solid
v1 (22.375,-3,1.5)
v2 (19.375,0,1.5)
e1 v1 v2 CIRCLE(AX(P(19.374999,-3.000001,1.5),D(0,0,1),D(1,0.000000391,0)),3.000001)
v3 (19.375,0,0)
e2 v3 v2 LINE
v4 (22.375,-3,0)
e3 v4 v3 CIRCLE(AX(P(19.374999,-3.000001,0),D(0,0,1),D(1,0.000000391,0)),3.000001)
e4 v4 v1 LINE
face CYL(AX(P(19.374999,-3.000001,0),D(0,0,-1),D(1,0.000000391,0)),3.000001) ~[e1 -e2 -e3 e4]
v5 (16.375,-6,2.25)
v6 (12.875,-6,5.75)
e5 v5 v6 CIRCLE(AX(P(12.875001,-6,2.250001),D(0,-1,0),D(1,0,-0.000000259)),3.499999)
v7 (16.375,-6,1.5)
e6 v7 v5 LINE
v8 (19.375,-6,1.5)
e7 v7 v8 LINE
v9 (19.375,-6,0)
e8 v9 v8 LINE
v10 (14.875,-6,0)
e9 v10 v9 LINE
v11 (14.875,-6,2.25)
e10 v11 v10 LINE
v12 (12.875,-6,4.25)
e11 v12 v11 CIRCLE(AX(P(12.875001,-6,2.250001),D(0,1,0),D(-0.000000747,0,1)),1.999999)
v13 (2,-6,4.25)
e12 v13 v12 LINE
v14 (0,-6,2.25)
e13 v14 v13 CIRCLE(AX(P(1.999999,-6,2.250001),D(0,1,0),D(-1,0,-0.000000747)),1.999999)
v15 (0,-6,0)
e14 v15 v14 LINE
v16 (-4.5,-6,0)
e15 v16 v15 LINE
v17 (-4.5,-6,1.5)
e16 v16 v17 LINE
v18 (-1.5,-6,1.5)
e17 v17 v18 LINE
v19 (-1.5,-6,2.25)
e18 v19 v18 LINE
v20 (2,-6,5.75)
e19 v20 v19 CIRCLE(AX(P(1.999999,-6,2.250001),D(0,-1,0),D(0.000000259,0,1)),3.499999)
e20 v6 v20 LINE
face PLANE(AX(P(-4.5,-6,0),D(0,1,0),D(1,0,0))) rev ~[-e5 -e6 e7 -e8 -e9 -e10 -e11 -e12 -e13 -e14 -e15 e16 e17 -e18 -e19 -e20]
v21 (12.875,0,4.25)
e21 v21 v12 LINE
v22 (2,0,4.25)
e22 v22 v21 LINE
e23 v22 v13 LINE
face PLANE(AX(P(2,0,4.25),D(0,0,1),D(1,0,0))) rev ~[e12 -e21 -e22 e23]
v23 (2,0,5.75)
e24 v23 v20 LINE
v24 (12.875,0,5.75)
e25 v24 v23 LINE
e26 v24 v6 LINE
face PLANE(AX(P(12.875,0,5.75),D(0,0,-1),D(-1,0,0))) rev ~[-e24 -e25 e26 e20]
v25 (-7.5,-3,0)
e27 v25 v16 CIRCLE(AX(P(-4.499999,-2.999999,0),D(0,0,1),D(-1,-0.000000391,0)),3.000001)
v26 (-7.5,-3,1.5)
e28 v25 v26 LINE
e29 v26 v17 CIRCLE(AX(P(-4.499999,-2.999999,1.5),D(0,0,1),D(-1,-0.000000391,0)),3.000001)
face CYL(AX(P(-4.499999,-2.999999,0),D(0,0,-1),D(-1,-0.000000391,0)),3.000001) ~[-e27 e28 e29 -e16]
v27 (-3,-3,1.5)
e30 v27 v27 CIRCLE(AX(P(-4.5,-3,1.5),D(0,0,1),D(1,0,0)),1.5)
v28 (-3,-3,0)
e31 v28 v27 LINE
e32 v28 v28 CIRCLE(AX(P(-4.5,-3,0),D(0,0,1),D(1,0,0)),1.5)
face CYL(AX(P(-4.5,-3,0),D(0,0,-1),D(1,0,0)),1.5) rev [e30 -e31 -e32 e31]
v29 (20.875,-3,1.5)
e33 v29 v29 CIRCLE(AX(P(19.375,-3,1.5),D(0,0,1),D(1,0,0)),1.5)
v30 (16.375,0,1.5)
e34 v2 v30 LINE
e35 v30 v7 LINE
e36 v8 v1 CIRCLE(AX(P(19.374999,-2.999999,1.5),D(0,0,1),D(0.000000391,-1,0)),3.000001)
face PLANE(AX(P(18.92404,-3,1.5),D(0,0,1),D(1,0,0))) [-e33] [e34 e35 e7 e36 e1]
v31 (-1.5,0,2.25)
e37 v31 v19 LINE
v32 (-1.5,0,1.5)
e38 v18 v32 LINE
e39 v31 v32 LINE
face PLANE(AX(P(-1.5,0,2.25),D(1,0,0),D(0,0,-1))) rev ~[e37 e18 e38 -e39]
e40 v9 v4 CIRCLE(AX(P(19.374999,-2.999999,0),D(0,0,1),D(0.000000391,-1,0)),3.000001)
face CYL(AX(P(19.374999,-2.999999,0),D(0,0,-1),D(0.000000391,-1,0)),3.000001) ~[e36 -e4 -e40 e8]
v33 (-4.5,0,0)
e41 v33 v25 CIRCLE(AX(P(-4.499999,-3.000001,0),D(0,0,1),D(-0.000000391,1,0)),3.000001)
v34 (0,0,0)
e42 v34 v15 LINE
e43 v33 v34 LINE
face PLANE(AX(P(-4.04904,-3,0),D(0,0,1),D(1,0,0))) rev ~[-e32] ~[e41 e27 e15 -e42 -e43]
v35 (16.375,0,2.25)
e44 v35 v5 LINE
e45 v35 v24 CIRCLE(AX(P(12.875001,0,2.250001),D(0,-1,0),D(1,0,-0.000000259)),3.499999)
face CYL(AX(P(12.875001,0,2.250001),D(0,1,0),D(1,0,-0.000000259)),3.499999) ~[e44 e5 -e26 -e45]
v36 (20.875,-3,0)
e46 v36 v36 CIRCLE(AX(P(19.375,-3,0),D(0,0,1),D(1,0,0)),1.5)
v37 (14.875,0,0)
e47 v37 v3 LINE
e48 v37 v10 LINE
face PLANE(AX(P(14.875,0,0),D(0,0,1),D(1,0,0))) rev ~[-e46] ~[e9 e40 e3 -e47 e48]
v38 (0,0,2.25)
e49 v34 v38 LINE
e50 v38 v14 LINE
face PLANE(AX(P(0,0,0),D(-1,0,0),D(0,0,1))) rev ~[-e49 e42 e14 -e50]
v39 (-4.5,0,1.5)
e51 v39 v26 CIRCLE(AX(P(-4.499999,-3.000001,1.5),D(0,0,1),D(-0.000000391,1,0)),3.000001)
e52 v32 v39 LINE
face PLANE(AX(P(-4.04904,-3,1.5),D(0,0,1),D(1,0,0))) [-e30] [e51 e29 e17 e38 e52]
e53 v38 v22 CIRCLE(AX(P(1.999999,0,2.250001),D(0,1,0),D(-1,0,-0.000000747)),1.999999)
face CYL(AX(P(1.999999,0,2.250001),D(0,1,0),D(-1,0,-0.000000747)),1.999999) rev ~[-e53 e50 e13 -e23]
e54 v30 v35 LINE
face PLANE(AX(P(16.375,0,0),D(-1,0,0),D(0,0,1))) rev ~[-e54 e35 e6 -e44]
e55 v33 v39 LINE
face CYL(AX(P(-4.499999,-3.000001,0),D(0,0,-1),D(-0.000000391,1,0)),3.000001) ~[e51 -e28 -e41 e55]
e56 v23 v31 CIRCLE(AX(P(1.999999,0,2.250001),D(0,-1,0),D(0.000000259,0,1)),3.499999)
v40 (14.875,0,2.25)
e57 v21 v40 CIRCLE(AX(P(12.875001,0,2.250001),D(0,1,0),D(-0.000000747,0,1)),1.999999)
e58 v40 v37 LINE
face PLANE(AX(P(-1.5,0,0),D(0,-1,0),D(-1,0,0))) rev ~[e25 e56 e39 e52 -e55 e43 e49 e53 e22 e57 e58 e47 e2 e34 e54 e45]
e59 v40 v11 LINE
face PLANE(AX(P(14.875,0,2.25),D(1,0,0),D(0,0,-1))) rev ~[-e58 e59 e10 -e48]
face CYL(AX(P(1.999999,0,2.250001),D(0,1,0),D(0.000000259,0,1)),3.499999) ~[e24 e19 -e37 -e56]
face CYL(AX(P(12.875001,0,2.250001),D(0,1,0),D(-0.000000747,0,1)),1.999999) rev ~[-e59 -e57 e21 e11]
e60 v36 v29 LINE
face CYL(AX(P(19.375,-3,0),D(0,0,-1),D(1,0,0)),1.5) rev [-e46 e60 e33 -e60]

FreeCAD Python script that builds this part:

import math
import FreeCAD as App
import Part
import Sketcher
from FreeCAD import Vector
Q = App.Units.Quantity

doc = App.newDocument("Part")
params = doc.addObject("Spreadsheet::Sheet", "Params")
for row, (alias, value) in enumerate([
    ("sketch1_radius", "1.999999 mm"),
    ("sketch1_radius2", "3.499999 mm"),
    ("sketch1_height", "2.25 mm"),
    ("pad1_length", "6 mm"),
    ("sketch2_diameter", "3 mm"),
    ("sketch2_radius", "3.000001 mm"),
    ("sketch2_width", "3 mm"),
    ("pad2_length", "1.5 mm"),
], start=1):
    params.set(f"A{row}", alias)
    params.set(f"B{row}", "=" + value)
    params.setAlias(f"B{row}", alias)

body = doc.addObject("PartDesign::Body", "Body")

sketch1 = body.newObject("Sketcher::SketchObject", "Sketch")
sketch1.AttachmentSupport = (doc.getObject("XZ_Plane"), [""])
sketch1.MapMode = "FlatFace"
sketch1.addGeometry(Part.LineSegment(Vector(-1.5, 0, 0), Vector(0, 0, 0)), False)
sketch1.addGeometry(Part.LineSegment(Vector(0, 0, 0), Vector(0, 2.25, 0)), False)
sketch1.addGeometry(Part.ArcOfCircle(Part.Circle(Vector(1.999999, 2.250001, 0), Vector(0, 0, 1), 1.999999), math.radians(89.999957), math.radians(180.000043)), False)
sketch1.addGeometry(Part.LineSegment(Vector(2, 4.25, 0), Vector(12.875, 4.25, 0)), False)
sketch1.addGeometry(Part.ArcOfCircle(Part.Circle(Vector(12.875001, 2.250001, 0), Vector(0, 0, 1), 1.999999), math.radians(-0.000043), math.radians(90.000043)), False)
sketch1.addGeometry(Part.LineSegment(Vector(14.875, 2.25, 0), Vector(14.875, 0, 0)), False)
sketch1.addGeometry(Part.LineSegment(Vector(14.875, 0, 0), Vector(16.375, 0, 0)), False)
sketch1.addGeometry(Part.LineSegment(Vector(16.375, 0, 0), Vector(16.375, 2.25, 0)), False)
sketch1.addGeometry(Part.ArcOfCircle(Part.Circle(Vector(12.875001, 2.250001, 0), Vector(0, 0, 1), 3.499999), math.radians(-0.000015), math.radians(90.000015)), False)
sketch1.addGeometry(Part.LineSegment(Vector(12.875, 5.75, 0), Vector(2, 5.75, 0)), False)
sketch1.addGeometry(Part.ArcOfCircle(Part.Circle(Vector(1.999999, 2.250001, 0), Vector(0, 0, 1), 3.499999), math.radians(89.999985), math.radians(180.000015)), False)
sketch1.addGeometry(Part.LineSegment(Vector(-1.5, 2.25, 0), Vector(-1.5, 0, 0)), False)
sketch1.addConstraint(Sketcher.Constraint("Coincident", 0, 2, 1, 1))
sketch1.addConstraint(Sketcher.Constraint("Tangent", 1, 2, 2, 2))
sketch1.addConstraint(Sketcher.Constraint("Tangent", 2, 1, 3, 1))
sketch1.addConstraint(Sketcher.Constraint("Tangent", 3, 2, 4, 2))
sketch1.addConstraint(Sketcher.Constraint("Tangent", 4, 1, 5, 1))
sketch1.addConstraint(Sketcher.Constraint("Coincident", 5, 2, 6, 1))
sketch1.addConstraint(Sketcher.Constraint("Coincident", 6, 2, 7, 1))
sketch1.addConstraint(Sketcher.Constraint("Tangent", 7, 2, 8, 1))
sketch1.addConstraint(Sketcher.Constraint("Tangent", 8, 2, 9, 1))
sketch1.addConstraint(Sketcher.Constraint("Tangent", 9, 2, 10, 1))
sketch1.addConstraint(Sketcher.Constraint("Tangent", 10, 2, 11, 1))
sketch1.addConstraint(Sketcher.Constraint("Coincident", 11, 2, 0, 1))
sketch1.addConstraint(Sketcher.Constraint("Horizontal", 0))
sketch1.addConstraint(Sketcher.Constraint("Vertical", 1))
sketch1.addConstraint(Sketcher.Constraint("Horizontal", 3))
sketch1.addConstraint(Sketcher.Constraint("Vertical", 5))
sketch1.addConstraint(Sketcher.Constraint("Horizontal", 6))
sketch1.addConstraint(Sketcher.Constraint("Vertical", 7))
sketch1.addConstraint(Sketcher.Constraint("Horizontal", 9))
sketch1.addConstraint(Sketcher.Constraint("Vertical", 11))
sketch1.addConstraint(Sketcher.Constraint("Coincident", 0, 2, -1, 1))
sketch1.addConstraint(Sketcher.Constraint("Coincident", 8, 3, 4, 3))
sketch1.addConstraint(Sketcher.Constraint("Coincident", 10, 3, 2, 3))
sketch1.addConstraint(Sketcher.Constraint("Equal", 2, 4))
sketch1.addConstraint(Sketcher.Constraint("PointOnObject", 5, 2, -1))
sketch1.addConstraint(Sketcher.Constraint("Radius", 2, Q("1.999999 mm")))
sketch1.addConstraint(Sketcher.Constraint("Radius", 8, Q("3.499999 mm")))
sketch1.addConstraint(Sketcher.Constraint("DistanceY", 1, 1, 1, 2, Q("2.25 mm")))
sketch1.addConstraint(Sketcher.Constraint("DistanceX", 3, 1, 3, 2, Q("10.875 mm")))
sketch1.setExpression("Constraints[25]", "Params.sketch1_radius")
sketch1.setExpression("Constraints[26]", "Params.sketch1_radius2")
sketch1.setExpression("Constraints[27]", "Params.sketch1_height")
pad1 = body.newObject("PartDesign::Pad", "Pad")
pad1.Profile = sketch1
pad1.setExpression("Length", "Params.pad1_length")

sketch2 = body.newObject("Sketcher::SketchObject", "Sketch001")
sketch2.AttachmentSupport = (doc.getObject("XY_Plane"), [""])
sketch2.MapMode = "FlatFace"
sketch2.addGeometry(Part.LineSegment(Vector(-1.5, -6, 0), Vector(-1.5, 0, 0)), False)
sketch2.addGeometry(Part.LineSegment(Vector(-1.5, 0, 0), Vector(-4.5, 0, 0)), False)
sketch2.addGeometry(Part.ArcOfCircle(Part.Circle(Vector(-4.499999, -3.000001, 0), Vector(0, 0, 1), 3.000001), math.radians(90.000022), math.radians(179.999978)), False)
sketch2.addGeometry(Part.ArcOfCircle(Part.Circle(Vector(-4.499999, -2.999999, 0), Vector(0, 0, 1), 3.000001), math.radians(-179.999978), math.radians(-90.000022)), False)
sketch2.addGeometry(Part.LineSegment(Vector(-4.5, -6, 0), Vector(-1.5, -6, 0)), False)
sketch2.addGeometry(Part.Circle(Vector(-4.5, -3, 0), Vector(0, 0, 1), 1.5), False)
sketch2.addGeometry(Part.LineSegment(Vector(16.375, 0, 0), Vector(16.375, -6, 0)), False)
sketch2.addGeometry(Part.LineSegment(Vector(16.375, -6, 0), Vector(19.375, -6, 0)), False)
sketch2.addGeometry(Part.ArcOfCircle(Part.Circle(Vector(19.374999, -2.999999, 0), Vector(0, 0, 1), 3.000001), math.radians(-89.999978), math.radians(-0.000022)), False)
sketch2.addGeometry(Part.ArcOfCircle(Part.Circle(Vector(19.374999, -3.000001, 0), Vector(0, 0, 1), 3.000001), math.radians(0.000022), math.radians(89.999978)), False)
sketch2.addGeometry(Part.LineSegment(Vector(19.375, 0, 0), Vector(16.375, 0, 0)), False)
sketch2.addGeometry(Part.Circle(Vector(19.375, -3, 0), Vector(0, 0, 1), 1.5), False)
sketch2.addConstraint(Sketcher.Constraint("Coincident", 0, 2, 1, 1))
sketch2.addConstraint(Sketcher.Constraint("Tangent", 1, 2, 2, 1))
sketch2.addConstraint(Sketcher.Constraint("Tangent", 2, 2, 3, 1))
sketch2.addConstraint(Sketcher.Constraint("Tangent", 3, 2, 4, 1))
sketch2.addConstraint(Sketcher.Constraint("Coincident", 4, 2, 0, 1))
sketch2.addConstraint(Sketcher.Constraint("Coincident", 6, 2, 7, 1))
sketch2.addConstraint(Sketcher.Constraint("Tangent", 7, 2, 8, 1))
sketch2.addConstraint(Sketcher.Constraint("Tangent", 8, 2, 9, 1))
sketch2.addConstraint(Sketcher.Constraint("Tangent", 9, 2, 10, 1))
sketch2.addConstraint(Sketcher.Constraint("Coincident", 10, 2, 6, 1))
sketch2.addConstraint(Sketcher.Constraint("Vertical", 0))
sketch2.addConstraint(Sketcher.Constraint("Horizontal", 1))
sketch2.addConstraint(Sketcher.Constraint("Horizontal", 4))
sketch2.addConstraint(Sketcher.Constraint("Vertical", 6))
sketch2.addConstraint(Sketcher.Constraint("Horizontal", 7))
sketch2.addConstraint(Sketcher.Constraint("Horizontal", 10))
sketch2.addConstraint(Sketcher.Constraint("Coincident", 5, 3, 2, 3))
sketch2.addConstraint(Sketcher.Constraint("Coincident", 11, 3, 8, 3))
sketch2.addConstraint(Sketcher.Constraint("Equal", 2, 3))
sketch2.addConstraint(Sketcher.Constraint("Equal", 3, 8))
sketch2.addConstraint(Sketcher.Constraint("Equal", 8, 9))
sketch2.addConstraint(Sketcher.Constraint("Equal", 5, 11))
sketch2.addConstraint(Sketcher.Constraint("PointOnObject", 0, 2, -1))
sketch2.addConstraint(Sketcher.Constraint("PointOnObject", 9, 2, -1))
sketch2.addConstraint(Sketcher.Constraint("Horizontal", 11, 3, 2, 2))
sketch2.addConstraint(Sketcher.Constraint("Horizontal", 2, 2, 8, 2))
sketch2.addConstraint(Sketcher.Constraint("Equal", 4, 7))
sketch2.addConstraint(Sketcher.Constraint("Diameter", 5, Q("3 mm")))
sketch2.addConstraint(Sketcher.Constraint("Radius", 2, Q("3.000001 mm")))
sketch2.addConstraint(Sketcher.Constraint("DistanceX", 1, 2, 1, 1, Q("3 mm")))
sketch2.addConstraint(Sketcher.Constraint("DistanceX", 2, 3, -1, 1, Q("4.499999 mm")))
sketch2.addConstraint(Sketcher.Constraint("DistanceX", -1, 1, 8, 3, Q("19.374999 mm")))
sketch2.setExpression("Constraints[27]", "Params.sketch2_diameter")
sketch2.setExpression("Constraints[28]", "Params.sketch2_radius")
sketch2.setExpression("Constraints[29]", "Params.sketch2_width")
pad2 = body.newObject("PartDesign::Pad", "Pad001")
pad2.Profile = sketch2
pad2.setExpression("Length", "Params.pad2_length")

doc.recompute()
